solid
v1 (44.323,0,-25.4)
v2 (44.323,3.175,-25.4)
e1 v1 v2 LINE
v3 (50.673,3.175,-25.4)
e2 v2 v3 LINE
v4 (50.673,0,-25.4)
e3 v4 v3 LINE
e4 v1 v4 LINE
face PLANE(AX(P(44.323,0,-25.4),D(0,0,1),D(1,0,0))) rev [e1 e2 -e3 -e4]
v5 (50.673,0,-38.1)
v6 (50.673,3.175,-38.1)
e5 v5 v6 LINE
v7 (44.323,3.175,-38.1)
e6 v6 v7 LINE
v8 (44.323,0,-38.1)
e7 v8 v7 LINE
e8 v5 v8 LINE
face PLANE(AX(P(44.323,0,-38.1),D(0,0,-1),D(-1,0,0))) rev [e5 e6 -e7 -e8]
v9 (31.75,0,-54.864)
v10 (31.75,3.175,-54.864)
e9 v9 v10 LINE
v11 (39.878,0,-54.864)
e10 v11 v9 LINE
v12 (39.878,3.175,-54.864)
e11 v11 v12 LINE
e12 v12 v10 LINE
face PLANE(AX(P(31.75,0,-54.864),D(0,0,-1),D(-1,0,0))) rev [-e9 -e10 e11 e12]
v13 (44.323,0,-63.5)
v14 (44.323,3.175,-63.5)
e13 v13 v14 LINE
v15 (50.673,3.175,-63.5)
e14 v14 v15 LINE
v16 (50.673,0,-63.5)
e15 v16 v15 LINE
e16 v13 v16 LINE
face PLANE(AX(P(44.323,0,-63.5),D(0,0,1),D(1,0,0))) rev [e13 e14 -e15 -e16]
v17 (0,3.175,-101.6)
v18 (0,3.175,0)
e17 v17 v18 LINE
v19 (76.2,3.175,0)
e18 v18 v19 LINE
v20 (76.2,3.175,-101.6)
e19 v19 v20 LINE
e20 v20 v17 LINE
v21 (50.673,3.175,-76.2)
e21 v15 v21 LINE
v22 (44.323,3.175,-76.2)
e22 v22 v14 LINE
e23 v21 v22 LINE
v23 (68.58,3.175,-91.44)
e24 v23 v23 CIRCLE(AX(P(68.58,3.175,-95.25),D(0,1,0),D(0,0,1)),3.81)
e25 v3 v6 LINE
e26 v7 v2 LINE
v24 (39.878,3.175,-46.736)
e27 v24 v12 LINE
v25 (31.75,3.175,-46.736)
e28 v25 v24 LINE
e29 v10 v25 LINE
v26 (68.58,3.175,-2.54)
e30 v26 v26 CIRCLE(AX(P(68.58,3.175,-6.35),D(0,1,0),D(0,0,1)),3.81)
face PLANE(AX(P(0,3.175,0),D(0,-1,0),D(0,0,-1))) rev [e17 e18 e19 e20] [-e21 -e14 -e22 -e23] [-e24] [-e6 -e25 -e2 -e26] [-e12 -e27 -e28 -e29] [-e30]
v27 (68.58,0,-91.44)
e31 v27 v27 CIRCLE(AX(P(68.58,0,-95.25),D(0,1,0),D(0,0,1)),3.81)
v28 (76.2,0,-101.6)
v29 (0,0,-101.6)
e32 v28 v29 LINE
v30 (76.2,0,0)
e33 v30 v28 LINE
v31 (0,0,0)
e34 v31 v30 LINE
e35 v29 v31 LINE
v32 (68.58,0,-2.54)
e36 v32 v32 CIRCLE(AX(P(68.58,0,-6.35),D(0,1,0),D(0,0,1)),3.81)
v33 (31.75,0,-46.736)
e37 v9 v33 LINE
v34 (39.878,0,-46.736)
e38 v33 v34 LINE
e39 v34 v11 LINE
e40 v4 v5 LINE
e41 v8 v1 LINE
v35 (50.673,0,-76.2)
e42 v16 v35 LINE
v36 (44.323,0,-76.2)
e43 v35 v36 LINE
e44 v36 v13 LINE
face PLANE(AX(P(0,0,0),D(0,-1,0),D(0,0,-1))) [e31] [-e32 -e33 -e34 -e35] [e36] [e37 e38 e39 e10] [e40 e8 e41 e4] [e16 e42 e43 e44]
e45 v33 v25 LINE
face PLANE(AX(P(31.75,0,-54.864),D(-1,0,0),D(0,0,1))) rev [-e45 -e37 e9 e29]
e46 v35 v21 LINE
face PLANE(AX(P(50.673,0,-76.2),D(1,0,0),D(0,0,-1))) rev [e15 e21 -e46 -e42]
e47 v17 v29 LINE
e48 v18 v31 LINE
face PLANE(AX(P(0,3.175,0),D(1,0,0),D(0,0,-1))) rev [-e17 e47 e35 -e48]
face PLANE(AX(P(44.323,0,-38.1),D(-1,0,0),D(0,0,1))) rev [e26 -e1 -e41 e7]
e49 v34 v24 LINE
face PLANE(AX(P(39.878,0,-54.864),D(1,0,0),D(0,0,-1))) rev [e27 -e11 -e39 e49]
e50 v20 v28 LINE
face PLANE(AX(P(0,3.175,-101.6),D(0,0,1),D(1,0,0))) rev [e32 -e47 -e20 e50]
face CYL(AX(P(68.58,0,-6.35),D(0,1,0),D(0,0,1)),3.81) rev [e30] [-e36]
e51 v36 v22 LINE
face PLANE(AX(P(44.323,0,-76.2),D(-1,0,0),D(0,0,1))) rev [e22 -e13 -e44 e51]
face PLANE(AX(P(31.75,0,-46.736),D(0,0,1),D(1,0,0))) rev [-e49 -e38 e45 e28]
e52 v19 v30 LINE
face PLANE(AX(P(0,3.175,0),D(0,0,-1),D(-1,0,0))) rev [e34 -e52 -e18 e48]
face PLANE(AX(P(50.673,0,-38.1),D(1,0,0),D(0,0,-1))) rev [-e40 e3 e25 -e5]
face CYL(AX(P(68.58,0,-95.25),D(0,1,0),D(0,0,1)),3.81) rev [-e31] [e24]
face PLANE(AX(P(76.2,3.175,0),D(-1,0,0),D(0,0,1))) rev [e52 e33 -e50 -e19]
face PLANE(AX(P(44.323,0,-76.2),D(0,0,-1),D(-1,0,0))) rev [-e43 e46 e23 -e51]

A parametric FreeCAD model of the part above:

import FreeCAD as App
import Part
import Sketcher

V = App.Vector
Q = App.Units.Quantity


def add_polygon(sketch, points):
    """Adds a closed chain of lines whose ends are joined by coincident constraints."""
    first, n = sketch.GeometryCount, len(points)
    for a, b in zip(points, points[1:] + points[:1]):
        sketch.addGeometry(Part.LineSegment(App.Vector(*a, 0), App.Vector(*b, 0)), False)
    for i in range(n):
        sketch.addConstraint(Sketcher.Constraint("Coincident", first + i, 2, first + (i + 1) % n, 1))

doc = App.newDocument("Part")
body = doc.addObject("PartDesign::Body", "Body")

# Sketch on XZ plane
sketch1 = body.newObject("Sketcher::SketchObject", "Sketch")
sketch1.AttachmentSupport = (doc.getObject("XZ_Plane"), [""])
sketch1.MapMode = "FlatFace"
add_polygon(sketch1, [(0, -101.6), (0, 0), (76.2, 0), (76.2, -101.6)])  # lines 0-3
sketch1.addConstraint(Sketcher.Constraint("Vertical", 0))
sketch1.addConstraint(Sketcher.Constraint("Horizontal", 1))
sketch1.addConstraint(Sketcher.Constraint("Vertical", 2))
sketch1.addConstraint(Sketcher.Constraint("Horizontal", 3))
sketch1.addConstraint(Sketcher.Constraint("Coincident", 0, 2, -1, 1))
sketch1.addConstraint(Sketcher.Constraint("DistanceX", 1, 1, 1, 2, Q("3 in")))
sketch1.addConstraint(Sketcher.Constraint("DistanceY", 0, 1, 0, 2, Q("4 in")))
pad1 = body.newObject("PartDesign::Pad", "Pad")
pad1.Profile = sketch1
pad1.Length = Q("0.125 in")
pad1.Reversed = True

# Sketch on XZ plane
sketch2 = body.newObject("Sketcher::SketchObject", "Sketch001")
sketch2.AttachmentSupport = (doc.getObject("XZ_Plane"), [""])
sketch2.MapMode = "FlatFace"
sketch2.AttachmentOffset = App.Placement(V(0, 0, -0.125 * 25.4), App.Rotation())
sketch2.addGeometry(Part.Circle(V(68.58, -95.25, 0), V(0, 0, 1), 3.81), False)  # 0
sketch2.addGeometry(Part.Circle(V(68.58, -6.35, 0), V(0, 0, 1), 3.81), False)  # 1
add_polygon(sketch2, [(44.323, -76.2), (44.323, -63.5), (50.673, -63.5), (50.673, -76.2)])  # lines 2-5
add_polygon(sketch2, [(44.323, -38.1), (44.323, -25.4), (50.673, -25.4), (50.673, -38.1)])  # lines 6-9
add_polygon(sketch2, [(31.75, -54.864), (31.75, -46.736), (39.878, -46.736), (39.878, -54.864)])  # lines 10-13
sketch2.addConstraint(Sketcher.Constraint("Vertical", 2))
sketch2.addConstraint(Sketcher.Constraint("Horizontal", 3))
sketch2.addConstraint(Sketcher.Constraint("Vertical", 4))
sketch2.addConstraint(Sketcher.Constraint("Horizontal", 5))
sketch2.addConstraint(Sketcher.Constraint("Vertical", 6))
sketch2.addConstraint(Sketcher.Constraint("Horizontal", 7))
sketch2.addConstraint(Sketcher.Constraint("Vertical", 8))
sketch2.addConstraint(Sketcher.Constraint("Horizontal", 9))
sketch2.addConstraint(Sketcher.Constraint("Vertical", 10))
sketch2.addConstraint(Sketcher.Constraint("Horizontal", 11))
sketch2.addConstraint(Sketcher.Constraint("Vertical", 12))
sketch2.addConstraint(Sketcher.Constraint("Horizontal", 13))
sketch2.addConstraint(Sketcher.Constraint("Equal", 0, 1))
sketch2.addConstraint(Sketcher.Constraint("Vertical", 0, 3, 1, 3))
sketch2.addConstraint(Sketcher.Constraint("Vertical", 5, 2, 6, 2))
sketch2.addConstraint(Sketcher.Constraint("Vertical", 4, 2, 7, 2))
sketch2.addConstraint(Sketcher.Constraint("Equal", 4, 6))
sketch2.addConstraint(Sketcher.Constraint("Equal", 13, 10))
sketch2.addConstraint(Sketcher.Constraint("Diameter", 0, Q("0.3 in")))
sketch2.addConstraint(Sketcher.Constraint("DistanceY", 2, 1, 2, 2, Q("0.5 in")))
sketch2.addConstraint(Sketcher.Constraint("DistanceY", 4, 2, -1, 1, Q("3 in")))
sketch2.addConstraint(Sketcher.Constraint("DistanceY", 6, 2, -1, 1, Q("1 in")))
sketch2.addConstraint(Sketcher.Constraint("DistanceX", 3, 1, 3, 2, Q("0.25 in")))
sketch2.addConstraint(Sketcher.Constraint("DistanceX", 11, 1, 11, 2, Q("0.32 in")))
sketch2.addConstraint(Sketcher.Constraint("DistanceX", -1, 1, 0, 3, Q("2.7 in")))
sketch2.addConstraint(Sketcher.Constraint("DistanceY", 0, 3, 1, 3, Q("3.5 in")))
sketch2.addConstraint(Sketcher.Constraint("DistanceY", 0, 3, -1, 1, Q("3.75 in")))
sketch2.addConstraint(Sketcher.Constraint("DistanceX", -1, 1, 10, 2, Q("1.25 in")))
sketch2.addConstraint(Sketcher.Constraint("DistanceY", 10, 2, -1, 1, Q("1.84 in")))
sketch2.addConstraint(Sketcher.Constraint("DistanceX", -1, 1, 2, 2, Q("1.745 in")))
pocket1 = body.newObject("PartDesign::Pocket", "Pocket")
pocket1.Profile = sketch2
pocket1.Type = "ThroughAll"
pocket1.Reversed = True

doc.recompute()
